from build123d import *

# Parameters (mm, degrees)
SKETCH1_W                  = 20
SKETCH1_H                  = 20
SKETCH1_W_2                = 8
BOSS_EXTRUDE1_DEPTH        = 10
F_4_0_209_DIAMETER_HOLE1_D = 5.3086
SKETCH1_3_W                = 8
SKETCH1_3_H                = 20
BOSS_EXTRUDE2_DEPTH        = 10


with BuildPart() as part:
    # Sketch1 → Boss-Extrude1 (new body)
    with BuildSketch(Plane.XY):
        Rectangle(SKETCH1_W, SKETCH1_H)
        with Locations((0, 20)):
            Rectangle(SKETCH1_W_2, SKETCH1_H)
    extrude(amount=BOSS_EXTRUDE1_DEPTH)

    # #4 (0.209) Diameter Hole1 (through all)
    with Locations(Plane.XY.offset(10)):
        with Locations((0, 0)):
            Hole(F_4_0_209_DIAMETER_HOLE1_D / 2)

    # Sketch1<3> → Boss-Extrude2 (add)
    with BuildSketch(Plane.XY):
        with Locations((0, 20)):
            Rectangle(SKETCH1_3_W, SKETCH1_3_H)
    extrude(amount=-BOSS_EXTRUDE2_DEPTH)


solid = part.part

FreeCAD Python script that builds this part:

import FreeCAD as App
import Part
import Sketcher

V = App.Vector
Q = App.Units.Quantity

doc = App.newDocument("Part")
body = doc.addObject("PartDesign::Body", "Body")

sketch1 = body.newObject("Sketcher::SketchObject", "Sketch")
sketch1.AttachmentSupport = (doc.getObject("XY_Plane"), [""])
sketch1.MapMode = "FlatFace"
sketch1.addGeometry(Part.LineSegment(V(-10, 10, 0), V(-10, -10, 0)), False)
sketch1.addGeometry(Part.LineSegment(V(-10, -10, 0), V(10, -10, 0)), False)
sketch1.addGeometry(Part.LineSegment(V(10, -10, 0), V(10, 10, 0)), False)
sketch1.addGeometry(Part.LineSegment(V(10, 10, 0), V(4, 10, 0)), False)
sketch1.addGeometry(Part.LineSegment(V(4, 10, 0), V(4, 30, 0)), False)
sketch1.addGeometry(Part.LineSegment(V(4, 30, 0), V(-4, 30, 0)), False)
sketch1.addGeometry(Part.LineSegment(V(-4, 30, 0), V(-4, 10, 0)), False)
sketch1.addGeometry(Part.LineSegment(V(-4, 10, 0), V(-10, 10, 0)), False)
sketch1.addConstraint(Sketcher.Constraint("Coincident", 0, 2, 1, 1))
sketch1.addConstraint(Sketcher.Constraint("Coincident", 1, 2, 2, 1))
sketch1.addConstraint(Sketcher.Constraint("Coincident", 2, 2, 3, 1))
sketch1.addConstraint(Sketcher.Constraint("Coincident", 3, 2, 4, 1))
sketch1.addConstraint(Sketcher.Constraint("Coincident", 4, 2, 5, 1))
sketch1.addConstraint(Sketcher.Constraint("Coincident", 5, 2, 6, 1))
sketch1.addConstraint(Sketcher.Constraint("Coincident", 6, 2, 7, 1))
sketch1.addConstraint(Sketcher.Constraint("Coincident", 7, 2, 0, 1))
sketch1.addConstraint(Sketcher.Constraint("Vertical", 0))
sketch1.addConstraint(Sketcher.Constraint("Horizontal", 1))
sketch1.addConstraint(Sketcher.Constraint("Vertical", 2))
sketch1.addConstraint(Sketcher.Constraint("Horizontal", 3))
sketch1.addConstraint(Sketcher.Constraint("Vertical", 4))
sketch1.addConstraint(Sketcher.Constraint("Horizontal", 5))
sketch1.addConstraint(Sketcher.Constraint("Vertical", 6))
sketch1.addConstraint(Sketcher.Constraint("Horizontal", 7))
sketch1.addConstraint(Sketcher.Constraint("Symmetric", 0, 2, 2, 2, -1, 1))
sketch1.addConstraint(Sketcher.Constraint("Symmetric", 3, 2, 6, 2, -2))
sketch1.addConstraint(Sketcher.Constraint("Equal", 1, 0))
sketch1.addConstraint(Sketcher.Constraint("Equal", 2, 4))
sketch1.addConstraint(Sketcher.Constraint("DistanceX", 1, 1, 1, 2, Q("20 mm")))
sketch1.addConstraint(Sketcher.Constraint("DistanceX", 3, 2, 3, 1, Q("6 mm")))
pad1 = body.newObject("PartDesign::Pad", "Pad")
pad1.Profile = sketch1
pad1.Length = 10

sketch2 = body.newObject("Sketcher::SketchObject", "Sketch001")
sketch2.AttachmentSupport = (doc.getObject("XY_Plane"), [""])
sketch2.MapMode = "FlatFace"
sketch2.AttachmentOffset = App.Placement(V(0, 0, 10), App.Rotation())
sketch2.addGeometry(Part.Circle(V(0, 0, 0), V(0, 0, 1), 2.7), False)
sketch2.addConstraint(Sketcher.Constraint("Coincident", 0, 3, -1, 1))
sketch2.addConstraint(Sketcher.Constraint("Diameter", 0, Q("5.3086 mm")))
doc.recompute()
hole = body.newObject("PartDesign::Hole", "Hole")
hole.Profile = sketch2
hole.ThreadType = "None"
hole.Diameter = 5.3086
hole.DepthType = "ThroughAll"

sketch3 = body.newObject("Sketcher::SketchObject", "Sketch002")
sketch3.AttachmentSupport = (doc.getObject("XY_Plane"), [""])
sketch3.MapMode = "FlatFace"
sketch3.addGeometry(Part.LineSegment(V(-4, 30, 0), V(-4, 10, 0)), False)
sketch3.addGeometry(Part.LineSegment(V(-4, 10, 0), V(4, 10, 0)), False)
sketch3.addGeometry(Part.LineSegment(V(4, 10, 0), V(4, 30, 0)), False)
sketch3.addGeometry(Part.LineSegment(V(4, 30, 0), V(-4, 30, 0)), False)
sketch3.addConstraint(Sketcher.Constraint("Coincident", 0, 2, 1, 1))
sketch3.addConstraint(Sketcher.Constraint("Coincident", 1, 2, 2, 1))
sketch3.addConstraint(Sketcher.Constraint("Coincident", 2, 2, 3, 1))
sketch3.addConstraint(Sketcher.Constraint("Coincident", 3, 2, 0, 1))
sketch3.addConstraint(Sketcher.Constraint("Vertical", 0))
sketch3.addConstraint(Sketcher.Constraint("Horizontal", 1))
sketch3.addConstraint(Sketcher.Constraint("Vertical", 2))
sketch3.addConstraint(Sketcher.Constraint("Horizontal", 3))
sketch3.addConstraint(Sketcher.Constraint("DistanceX", 1, 1, 1, 2, Q("8 mm")))
sketch3.addConstraint(Sketcher.Constraint("DistanceY", 0, 2, 0, 1, Q("20 mm")))
sketch3.addConstraint(Sketcher.Constraint("DistanceX", 0, 2, -1, 1, Q("4 mm")))
sketch3.addConstraint(Sketcher.Constraint("DistanceY", -1, 1, 0, 2, Q("10 mm")))
pad2 = body.newObject("PartDesign::Pad", "Pad001")
pad2.Profile = sketch3
pad2.Length = 10
pad2.Reversed = True

doc.recompute()
